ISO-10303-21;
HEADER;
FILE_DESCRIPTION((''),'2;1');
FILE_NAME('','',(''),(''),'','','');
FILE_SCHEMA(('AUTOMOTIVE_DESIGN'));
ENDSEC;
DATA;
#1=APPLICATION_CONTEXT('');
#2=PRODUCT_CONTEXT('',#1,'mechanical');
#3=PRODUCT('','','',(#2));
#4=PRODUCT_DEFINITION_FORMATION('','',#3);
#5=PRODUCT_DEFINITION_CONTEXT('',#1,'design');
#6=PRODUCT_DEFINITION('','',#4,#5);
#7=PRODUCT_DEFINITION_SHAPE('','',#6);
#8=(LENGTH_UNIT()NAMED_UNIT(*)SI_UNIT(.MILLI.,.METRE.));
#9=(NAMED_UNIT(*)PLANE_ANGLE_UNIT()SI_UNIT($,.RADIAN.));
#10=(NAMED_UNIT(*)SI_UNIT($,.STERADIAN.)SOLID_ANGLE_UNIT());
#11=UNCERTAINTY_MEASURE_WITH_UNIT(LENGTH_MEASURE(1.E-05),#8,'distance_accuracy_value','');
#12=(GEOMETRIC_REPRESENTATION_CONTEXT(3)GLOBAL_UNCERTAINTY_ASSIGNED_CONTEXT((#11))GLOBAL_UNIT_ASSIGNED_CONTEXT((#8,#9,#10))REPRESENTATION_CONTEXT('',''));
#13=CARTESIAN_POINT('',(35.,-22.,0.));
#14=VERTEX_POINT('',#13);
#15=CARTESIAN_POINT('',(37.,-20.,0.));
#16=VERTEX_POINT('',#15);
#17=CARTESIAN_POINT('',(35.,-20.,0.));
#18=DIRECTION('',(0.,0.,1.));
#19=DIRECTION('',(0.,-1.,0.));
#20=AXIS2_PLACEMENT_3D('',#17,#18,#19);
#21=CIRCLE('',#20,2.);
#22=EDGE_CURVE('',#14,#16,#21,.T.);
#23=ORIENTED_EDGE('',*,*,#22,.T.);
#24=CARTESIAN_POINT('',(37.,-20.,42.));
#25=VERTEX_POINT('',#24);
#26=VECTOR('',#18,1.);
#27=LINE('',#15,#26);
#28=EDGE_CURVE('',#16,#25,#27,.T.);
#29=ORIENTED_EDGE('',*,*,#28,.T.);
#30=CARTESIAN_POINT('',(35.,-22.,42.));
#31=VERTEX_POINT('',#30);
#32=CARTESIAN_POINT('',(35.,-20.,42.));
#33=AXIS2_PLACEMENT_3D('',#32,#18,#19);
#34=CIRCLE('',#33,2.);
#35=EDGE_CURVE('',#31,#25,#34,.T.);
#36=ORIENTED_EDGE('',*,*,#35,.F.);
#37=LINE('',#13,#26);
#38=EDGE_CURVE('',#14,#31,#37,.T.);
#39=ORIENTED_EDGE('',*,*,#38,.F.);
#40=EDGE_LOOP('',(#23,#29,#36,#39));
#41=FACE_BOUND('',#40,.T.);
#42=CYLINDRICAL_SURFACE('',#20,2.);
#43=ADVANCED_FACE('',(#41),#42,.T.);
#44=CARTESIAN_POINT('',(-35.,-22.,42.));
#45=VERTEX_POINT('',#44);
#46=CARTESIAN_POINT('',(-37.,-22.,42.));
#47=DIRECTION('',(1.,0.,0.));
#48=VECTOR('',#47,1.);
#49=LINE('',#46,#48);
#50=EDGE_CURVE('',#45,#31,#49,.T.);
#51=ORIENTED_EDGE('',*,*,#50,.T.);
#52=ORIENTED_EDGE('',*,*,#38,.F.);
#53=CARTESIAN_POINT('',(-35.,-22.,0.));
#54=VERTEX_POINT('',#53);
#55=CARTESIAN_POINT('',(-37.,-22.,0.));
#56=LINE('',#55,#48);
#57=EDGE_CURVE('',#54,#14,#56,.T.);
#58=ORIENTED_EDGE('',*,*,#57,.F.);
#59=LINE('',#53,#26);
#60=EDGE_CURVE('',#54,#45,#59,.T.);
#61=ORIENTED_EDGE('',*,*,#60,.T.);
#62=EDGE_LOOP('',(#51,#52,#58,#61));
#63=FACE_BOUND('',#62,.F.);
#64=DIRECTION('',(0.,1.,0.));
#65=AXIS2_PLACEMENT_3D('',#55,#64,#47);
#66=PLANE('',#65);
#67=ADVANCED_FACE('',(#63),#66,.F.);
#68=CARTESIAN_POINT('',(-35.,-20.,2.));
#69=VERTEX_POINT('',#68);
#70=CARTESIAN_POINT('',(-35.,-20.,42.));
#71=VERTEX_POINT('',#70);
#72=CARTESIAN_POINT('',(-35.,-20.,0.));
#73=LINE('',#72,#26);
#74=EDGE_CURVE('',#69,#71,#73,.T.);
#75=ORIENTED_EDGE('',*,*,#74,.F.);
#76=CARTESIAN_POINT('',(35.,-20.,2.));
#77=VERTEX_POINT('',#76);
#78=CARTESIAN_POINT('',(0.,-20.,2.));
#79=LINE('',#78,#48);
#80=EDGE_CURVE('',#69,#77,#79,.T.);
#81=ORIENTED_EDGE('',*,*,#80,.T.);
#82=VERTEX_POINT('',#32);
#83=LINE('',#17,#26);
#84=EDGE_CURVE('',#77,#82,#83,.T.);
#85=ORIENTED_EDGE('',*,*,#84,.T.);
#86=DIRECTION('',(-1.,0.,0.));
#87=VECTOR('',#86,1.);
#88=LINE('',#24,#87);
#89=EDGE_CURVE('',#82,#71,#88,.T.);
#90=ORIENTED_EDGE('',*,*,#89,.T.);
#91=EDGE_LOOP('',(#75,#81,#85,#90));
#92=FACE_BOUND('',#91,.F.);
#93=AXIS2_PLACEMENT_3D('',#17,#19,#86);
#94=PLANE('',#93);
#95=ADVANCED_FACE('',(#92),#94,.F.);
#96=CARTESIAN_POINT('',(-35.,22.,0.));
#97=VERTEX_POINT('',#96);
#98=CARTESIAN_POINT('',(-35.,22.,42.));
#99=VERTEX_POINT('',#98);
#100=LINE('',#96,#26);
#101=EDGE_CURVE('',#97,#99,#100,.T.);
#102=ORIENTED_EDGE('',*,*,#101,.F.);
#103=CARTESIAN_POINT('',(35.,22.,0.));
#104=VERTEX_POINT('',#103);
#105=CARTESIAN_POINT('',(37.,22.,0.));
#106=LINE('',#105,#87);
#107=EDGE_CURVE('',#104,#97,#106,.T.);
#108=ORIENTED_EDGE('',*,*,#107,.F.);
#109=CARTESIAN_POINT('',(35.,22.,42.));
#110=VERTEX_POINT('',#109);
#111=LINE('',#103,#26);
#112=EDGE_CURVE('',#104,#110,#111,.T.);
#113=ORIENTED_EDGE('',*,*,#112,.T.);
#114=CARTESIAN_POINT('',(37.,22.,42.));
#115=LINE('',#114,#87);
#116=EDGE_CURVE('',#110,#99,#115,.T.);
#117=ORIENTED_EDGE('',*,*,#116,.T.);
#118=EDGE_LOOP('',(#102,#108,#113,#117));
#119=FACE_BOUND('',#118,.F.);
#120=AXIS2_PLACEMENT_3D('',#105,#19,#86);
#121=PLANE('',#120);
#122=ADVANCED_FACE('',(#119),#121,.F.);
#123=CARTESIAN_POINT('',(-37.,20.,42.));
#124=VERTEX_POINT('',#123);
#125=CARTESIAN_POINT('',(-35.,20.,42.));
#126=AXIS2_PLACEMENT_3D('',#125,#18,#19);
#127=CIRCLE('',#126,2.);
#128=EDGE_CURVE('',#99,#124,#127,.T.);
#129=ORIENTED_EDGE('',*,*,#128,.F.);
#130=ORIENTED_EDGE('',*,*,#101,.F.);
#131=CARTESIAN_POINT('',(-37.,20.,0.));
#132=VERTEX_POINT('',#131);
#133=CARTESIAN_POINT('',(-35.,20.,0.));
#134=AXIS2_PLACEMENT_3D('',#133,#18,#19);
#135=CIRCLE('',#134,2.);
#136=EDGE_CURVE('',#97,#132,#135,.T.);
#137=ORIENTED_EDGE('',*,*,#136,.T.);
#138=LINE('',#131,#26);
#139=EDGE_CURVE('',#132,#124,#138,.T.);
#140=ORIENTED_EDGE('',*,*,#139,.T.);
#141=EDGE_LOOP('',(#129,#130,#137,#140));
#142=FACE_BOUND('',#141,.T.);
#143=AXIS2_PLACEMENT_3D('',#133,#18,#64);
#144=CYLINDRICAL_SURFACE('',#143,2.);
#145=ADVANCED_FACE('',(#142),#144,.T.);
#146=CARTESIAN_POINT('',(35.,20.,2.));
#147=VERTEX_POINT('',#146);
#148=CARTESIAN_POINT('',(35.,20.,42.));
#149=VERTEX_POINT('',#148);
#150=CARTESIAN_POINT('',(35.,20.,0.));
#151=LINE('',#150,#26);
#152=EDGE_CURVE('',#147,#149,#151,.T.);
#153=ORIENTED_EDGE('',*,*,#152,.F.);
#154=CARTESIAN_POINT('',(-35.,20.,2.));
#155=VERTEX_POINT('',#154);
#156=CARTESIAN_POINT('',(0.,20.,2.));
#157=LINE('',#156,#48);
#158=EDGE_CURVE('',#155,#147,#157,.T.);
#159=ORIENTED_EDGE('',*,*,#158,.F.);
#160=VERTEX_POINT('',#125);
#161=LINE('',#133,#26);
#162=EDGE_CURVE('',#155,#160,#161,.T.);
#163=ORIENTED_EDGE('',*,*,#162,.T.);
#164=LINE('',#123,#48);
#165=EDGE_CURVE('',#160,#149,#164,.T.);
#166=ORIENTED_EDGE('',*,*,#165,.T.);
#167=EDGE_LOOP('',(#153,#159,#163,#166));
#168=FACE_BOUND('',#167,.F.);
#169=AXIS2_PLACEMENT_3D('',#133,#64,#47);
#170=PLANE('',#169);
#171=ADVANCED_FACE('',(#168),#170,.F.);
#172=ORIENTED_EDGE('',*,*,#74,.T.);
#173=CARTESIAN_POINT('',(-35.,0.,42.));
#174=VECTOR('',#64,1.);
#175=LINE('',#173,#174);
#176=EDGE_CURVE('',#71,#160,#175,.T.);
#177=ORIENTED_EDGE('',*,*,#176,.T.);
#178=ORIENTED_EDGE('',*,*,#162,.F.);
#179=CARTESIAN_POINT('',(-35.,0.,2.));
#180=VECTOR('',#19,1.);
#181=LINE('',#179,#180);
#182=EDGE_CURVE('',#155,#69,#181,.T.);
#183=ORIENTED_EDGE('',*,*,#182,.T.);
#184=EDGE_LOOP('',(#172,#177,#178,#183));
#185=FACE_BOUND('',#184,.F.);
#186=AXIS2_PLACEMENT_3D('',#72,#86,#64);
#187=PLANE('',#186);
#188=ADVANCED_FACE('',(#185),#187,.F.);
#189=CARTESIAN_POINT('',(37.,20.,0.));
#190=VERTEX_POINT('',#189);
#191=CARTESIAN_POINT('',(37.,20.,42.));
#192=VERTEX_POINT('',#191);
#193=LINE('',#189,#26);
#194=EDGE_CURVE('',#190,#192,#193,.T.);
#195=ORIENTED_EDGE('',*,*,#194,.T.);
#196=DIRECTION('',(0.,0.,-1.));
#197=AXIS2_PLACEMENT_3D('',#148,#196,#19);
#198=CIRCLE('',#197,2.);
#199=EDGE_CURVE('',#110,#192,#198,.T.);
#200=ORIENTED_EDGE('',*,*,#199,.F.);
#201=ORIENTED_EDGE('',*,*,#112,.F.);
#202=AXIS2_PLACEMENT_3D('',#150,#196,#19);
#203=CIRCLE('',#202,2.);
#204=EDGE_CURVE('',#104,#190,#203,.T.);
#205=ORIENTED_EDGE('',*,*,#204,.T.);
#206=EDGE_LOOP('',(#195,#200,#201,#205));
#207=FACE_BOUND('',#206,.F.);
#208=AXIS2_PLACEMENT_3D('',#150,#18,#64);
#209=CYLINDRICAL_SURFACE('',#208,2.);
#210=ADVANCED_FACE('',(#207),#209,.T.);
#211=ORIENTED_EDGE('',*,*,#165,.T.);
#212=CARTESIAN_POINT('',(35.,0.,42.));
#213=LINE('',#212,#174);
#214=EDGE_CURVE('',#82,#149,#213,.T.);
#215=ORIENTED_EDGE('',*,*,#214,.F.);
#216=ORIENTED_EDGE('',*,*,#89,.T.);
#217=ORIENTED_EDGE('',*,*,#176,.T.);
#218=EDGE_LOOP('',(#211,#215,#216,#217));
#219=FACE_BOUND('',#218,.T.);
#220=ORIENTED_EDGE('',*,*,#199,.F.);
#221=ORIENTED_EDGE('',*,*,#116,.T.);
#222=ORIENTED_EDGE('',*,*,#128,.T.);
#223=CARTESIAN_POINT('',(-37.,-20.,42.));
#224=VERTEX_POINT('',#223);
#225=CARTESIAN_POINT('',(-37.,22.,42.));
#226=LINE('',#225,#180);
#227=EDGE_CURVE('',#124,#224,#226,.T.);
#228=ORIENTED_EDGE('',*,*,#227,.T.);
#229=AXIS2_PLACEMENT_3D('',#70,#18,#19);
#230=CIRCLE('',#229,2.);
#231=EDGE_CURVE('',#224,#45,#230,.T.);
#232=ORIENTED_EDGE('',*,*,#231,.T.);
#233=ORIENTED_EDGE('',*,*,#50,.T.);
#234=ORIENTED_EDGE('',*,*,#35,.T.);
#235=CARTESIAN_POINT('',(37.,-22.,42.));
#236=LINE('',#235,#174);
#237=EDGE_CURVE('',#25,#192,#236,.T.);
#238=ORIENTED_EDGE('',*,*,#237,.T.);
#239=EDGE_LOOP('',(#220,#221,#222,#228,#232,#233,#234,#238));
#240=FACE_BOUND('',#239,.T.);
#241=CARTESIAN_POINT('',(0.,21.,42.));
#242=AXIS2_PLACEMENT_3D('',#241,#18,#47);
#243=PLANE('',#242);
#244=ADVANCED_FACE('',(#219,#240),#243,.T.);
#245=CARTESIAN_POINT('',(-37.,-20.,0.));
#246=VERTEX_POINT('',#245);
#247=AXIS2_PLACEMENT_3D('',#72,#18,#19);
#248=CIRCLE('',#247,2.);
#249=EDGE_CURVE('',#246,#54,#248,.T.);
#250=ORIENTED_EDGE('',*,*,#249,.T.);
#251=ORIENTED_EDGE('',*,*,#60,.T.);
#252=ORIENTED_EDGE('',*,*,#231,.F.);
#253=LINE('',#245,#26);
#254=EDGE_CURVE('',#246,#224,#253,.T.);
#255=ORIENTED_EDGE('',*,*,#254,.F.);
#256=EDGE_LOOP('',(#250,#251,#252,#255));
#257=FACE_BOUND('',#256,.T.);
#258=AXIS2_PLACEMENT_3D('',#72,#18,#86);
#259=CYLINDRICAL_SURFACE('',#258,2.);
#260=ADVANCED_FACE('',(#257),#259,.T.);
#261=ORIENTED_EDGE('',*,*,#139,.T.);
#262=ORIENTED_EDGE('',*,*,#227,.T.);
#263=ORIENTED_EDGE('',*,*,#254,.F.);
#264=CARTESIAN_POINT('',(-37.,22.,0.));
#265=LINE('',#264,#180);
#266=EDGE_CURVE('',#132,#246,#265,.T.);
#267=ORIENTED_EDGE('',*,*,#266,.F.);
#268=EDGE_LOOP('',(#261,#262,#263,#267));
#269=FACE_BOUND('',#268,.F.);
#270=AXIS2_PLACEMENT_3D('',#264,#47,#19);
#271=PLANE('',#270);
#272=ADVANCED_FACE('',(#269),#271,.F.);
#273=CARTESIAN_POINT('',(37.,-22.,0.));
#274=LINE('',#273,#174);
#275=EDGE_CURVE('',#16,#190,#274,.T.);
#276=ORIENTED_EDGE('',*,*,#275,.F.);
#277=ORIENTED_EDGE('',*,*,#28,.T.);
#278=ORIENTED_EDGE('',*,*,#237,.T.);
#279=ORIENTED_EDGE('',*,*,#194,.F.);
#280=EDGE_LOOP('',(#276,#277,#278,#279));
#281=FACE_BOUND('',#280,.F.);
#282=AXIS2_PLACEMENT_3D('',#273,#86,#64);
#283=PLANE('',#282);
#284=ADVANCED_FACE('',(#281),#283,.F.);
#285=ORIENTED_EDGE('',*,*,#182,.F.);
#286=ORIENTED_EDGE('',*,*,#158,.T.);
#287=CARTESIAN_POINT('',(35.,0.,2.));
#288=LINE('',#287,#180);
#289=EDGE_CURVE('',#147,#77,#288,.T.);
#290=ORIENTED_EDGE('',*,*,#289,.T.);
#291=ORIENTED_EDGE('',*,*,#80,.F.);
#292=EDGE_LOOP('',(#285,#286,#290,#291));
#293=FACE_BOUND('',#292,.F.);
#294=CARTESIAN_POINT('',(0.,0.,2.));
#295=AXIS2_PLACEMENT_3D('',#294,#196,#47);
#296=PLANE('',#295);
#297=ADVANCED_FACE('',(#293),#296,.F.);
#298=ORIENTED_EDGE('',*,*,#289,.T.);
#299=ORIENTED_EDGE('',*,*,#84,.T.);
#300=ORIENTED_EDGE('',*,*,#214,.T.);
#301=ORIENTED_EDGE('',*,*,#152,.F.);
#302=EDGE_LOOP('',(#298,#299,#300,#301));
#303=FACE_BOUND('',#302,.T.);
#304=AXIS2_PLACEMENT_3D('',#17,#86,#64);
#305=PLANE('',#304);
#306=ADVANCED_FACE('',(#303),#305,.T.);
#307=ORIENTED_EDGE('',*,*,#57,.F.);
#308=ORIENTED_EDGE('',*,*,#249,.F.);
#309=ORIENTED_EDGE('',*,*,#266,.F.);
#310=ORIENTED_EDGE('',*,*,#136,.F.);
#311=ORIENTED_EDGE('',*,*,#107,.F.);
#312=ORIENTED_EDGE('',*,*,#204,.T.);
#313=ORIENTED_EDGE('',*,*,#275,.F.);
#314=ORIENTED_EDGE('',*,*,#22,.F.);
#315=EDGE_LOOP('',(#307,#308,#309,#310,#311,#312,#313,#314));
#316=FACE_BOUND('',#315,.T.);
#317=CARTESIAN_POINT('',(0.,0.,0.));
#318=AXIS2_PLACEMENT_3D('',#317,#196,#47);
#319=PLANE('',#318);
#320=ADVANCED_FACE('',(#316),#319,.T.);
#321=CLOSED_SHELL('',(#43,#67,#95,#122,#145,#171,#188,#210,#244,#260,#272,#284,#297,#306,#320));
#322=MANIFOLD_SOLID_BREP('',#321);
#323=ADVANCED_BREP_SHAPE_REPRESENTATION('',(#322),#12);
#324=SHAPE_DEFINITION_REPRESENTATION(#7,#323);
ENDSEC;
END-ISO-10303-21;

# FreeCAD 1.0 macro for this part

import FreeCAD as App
import Part
import Sketcher
from FreeCAD import Vector


def edges_at(feature, points):
    """Names of the edges that pass closest to the given points."""
    edges = feature.Shape.Edges
    near = lambda p: min(range(len(edges)), key=lambda i: edges[i].distToShape(Part.Vertex(*p))[0])
    return sorted({f"Edge{near(p) + 1}" for p in points})


def add_polygon(sketch, points):
    """Adds a closed chain of lines whose ends are joined by coincident constraints."""
    first, n = sketch.GeometryCount, len(points)
    for a, b in zip(points, points[1:] + points[:1]):
        sketch.addGeometry(Part.LineSegment(App.Vector(*a, 0), App.Vector(*b, 0)), False)
    for i in range(n):
        sketch.addConstraint(Sketcher.Constraint("Coincident", first + i, 2, first + (i + 1) % n, 1))

doc = App.newDocument("Part")
body = doc.addObject("PartDesign::Body", "Body")

# Sketch on XY plane
sketch1 = doc.addObject("Sketcher::SketchObject", "Sketch")
body.addObject(sketch1)
sketch1.AttachmentSupport = (doc.XY_Plane, [""])
sketch1.MapMode = "FlatFace"
add_polygon(sketch1, [(37, 22), (-37, 22), (-37, -22), (37, -22)])  # lines 0-3
add_polygon(sketch1, [(-35, 20), (35, 20), (35, -20), (-35, -20)])  # lines 4-7
sketch1.addConstraint([
    Sketcher.Constraint("Horizontal", 0),
    Sketcher.Constraint("Vertical", 1),
    Sketcher.Constraint("Horizontal", 2),
    Sketcher.Constraint("Vertical", 3),
    Sketcher.Constraint("Horizontal", 4),
    Sketcher.Constraint("Vertical", 5),
    Sketcher.Constraint("Horizontal", 6),
    Sketcher.Constraint("Vertical", 7),
    Sketcher.Constraint("Symmetric", 0, 2, 2, 2, -1, 1),
    Sketcher.Constraint("Symmetric", 4, 2, 6, 2, -1, 1),
    Sketcher.Constraint("DistanceX", 0, 2, 0, 1, 74.0),
    Sketcher.Constraint("DistanceX", 4, 1, 4, 2, 70.0),
    Sketcher.Constraint("DistanceY", 1, 2, 1, 1, 44.0),
    Sketcher.Constraint("DistanceY", 5, 2, 5, 1, 40.0),
])
pad1 = doc.addObject("PartDesign::Pad", "Pad")
body.addObject(pad1)
pad1.Profile = sketch1
pad1.Length = 42

# Sketch on XY plane
sketch2 = doc.addObject("Sketcher::SketchObject", "Sketch001")
body.addObject(sketch2)
sketch2.AttachmentSupport = (doc.XY_Plane, [""])
sketch2.MapMode = "FlatFace"
add_polygon(sketch2, [(-35, -20), (-35, 20), (35, 20), (35, -20)])  # lines 0-3
sketch2.addConstraint([
    Sketcher.Constraint("Vertical", 0),
    Sketcher.Constraint("Horizontal", 1),
    Sketcher.Constraint("Vertical", 2),
    Sketcher.Constraint("Horizontal", 3),
    Sketcher.Constraint("Symmetric", 0, 2, 2, 2, -1, 1),
    Sketcher.Constraint("DistanceX", 1, 1, 1, 2, 70.0),
    Sketcher.Constraint("DistanceY", 0, 1, 0, 2, 40.0),
])
pad2 = doc.addObject("PartDesign::Pad", "Pad001")
body.addObject(pad2)
pad2.Profile = sketch2
pad2.Length = 2
doc.recompute()

fillet = doc.addObject("PartDesign::Fillet", "Fillet")
body.addObject(fillet)
fillet.Base = (pad2, edges_at(pad2, [
    (37, -22, 21),
    (37, 22, 21),
    (-37, -22, 21),
    (-37, 22, 21),
]))
fillet.Radius = 2

doc.recompute()
